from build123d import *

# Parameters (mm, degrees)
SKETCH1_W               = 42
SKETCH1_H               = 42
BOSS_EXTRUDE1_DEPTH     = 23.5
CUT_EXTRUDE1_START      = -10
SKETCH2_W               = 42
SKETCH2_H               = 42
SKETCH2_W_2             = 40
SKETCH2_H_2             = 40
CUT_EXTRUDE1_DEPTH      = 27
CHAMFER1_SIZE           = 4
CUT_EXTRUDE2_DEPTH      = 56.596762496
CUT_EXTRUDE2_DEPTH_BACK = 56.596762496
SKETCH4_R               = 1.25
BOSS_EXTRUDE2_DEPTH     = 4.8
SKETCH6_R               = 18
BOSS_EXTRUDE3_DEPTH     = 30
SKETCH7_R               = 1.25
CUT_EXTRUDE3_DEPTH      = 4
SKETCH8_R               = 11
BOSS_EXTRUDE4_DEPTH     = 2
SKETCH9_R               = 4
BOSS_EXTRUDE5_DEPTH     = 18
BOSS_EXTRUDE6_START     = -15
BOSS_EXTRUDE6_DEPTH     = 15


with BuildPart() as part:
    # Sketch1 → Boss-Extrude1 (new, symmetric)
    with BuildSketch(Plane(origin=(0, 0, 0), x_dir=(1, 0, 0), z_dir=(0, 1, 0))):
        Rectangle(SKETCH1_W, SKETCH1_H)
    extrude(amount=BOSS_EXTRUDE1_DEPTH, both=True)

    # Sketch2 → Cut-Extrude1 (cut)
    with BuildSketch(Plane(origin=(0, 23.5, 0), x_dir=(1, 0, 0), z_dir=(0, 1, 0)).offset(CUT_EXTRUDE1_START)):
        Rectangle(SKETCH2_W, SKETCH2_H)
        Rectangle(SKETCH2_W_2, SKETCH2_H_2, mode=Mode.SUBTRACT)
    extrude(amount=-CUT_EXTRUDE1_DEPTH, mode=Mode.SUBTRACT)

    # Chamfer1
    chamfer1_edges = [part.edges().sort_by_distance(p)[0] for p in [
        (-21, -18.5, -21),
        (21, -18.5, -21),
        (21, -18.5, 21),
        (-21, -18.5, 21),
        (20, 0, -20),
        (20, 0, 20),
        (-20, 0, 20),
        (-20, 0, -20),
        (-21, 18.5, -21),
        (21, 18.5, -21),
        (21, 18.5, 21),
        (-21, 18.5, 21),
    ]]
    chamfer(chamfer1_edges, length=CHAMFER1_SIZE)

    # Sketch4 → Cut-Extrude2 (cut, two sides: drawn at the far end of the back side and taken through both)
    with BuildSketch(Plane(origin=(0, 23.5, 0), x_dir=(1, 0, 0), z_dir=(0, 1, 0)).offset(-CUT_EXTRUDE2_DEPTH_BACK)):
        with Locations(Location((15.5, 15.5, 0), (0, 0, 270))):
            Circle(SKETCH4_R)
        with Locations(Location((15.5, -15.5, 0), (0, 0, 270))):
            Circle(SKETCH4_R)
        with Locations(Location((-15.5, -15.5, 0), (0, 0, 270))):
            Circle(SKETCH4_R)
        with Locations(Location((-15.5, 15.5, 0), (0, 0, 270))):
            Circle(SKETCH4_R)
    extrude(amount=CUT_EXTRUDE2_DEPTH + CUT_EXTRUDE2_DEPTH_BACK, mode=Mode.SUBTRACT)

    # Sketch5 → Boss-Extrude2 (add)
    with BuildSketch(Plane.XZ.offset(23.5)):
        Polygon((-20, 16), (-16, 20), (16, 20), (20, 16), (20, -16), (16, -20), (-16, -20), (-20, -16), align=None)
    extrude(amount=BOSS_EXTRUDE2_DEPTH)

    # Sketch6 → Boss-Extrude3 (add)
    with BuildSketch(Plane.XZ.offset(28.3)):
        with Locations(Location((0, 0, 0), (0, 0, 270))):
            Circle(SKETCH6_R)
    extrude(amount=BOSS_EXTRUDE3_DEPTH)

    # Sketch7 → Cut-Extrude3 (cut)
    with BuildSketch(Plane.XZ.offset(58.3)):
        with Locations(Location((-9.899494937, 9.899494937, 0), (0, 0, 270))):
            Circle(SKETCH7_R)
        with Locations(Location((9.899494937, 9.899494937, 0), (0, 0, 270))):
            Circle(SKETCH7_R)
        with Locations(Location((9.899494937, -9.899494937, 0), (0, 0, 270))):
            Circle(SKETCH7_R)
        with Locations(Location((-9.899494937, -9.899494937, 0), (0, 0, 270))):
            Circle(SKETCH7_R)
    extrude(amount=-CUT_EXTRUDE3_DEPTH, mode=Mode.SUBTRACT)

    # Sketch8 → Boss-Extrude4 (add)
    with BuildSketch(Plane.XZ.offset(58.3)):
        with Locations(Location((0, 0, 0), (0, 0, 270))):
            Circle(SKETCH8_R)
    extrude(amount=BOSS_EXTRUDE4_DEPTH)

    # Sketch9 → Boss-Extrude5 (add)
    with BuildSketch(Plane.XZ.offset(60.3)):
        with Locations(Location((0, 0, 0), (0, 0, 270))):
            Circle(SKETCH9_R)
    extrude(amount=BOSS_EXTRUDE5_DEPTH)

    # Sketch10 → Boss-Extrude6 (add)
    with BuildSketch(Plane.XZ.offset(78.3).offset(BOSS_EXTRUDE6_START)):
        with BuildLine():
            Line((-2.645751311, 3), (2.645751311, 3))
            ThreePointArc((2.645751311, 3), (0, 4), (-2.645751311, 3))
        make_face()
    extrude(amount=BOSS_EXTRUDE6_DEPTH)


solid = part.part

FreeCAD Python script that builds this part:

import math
import FreeCAD as App
import Part
import Sketcher

V = App.Vector
Q = App.Units.Quantity


def edges_at(feature, points):
    """Names of the edges that pass closest to the given points."""
    edges = feature.Shape.Edges
    near = lambda p: min(range(len(edges)), key=lambda i: edges[i].distToShape(Part.Vertex(*p))[0])
    return sorted({f"Edge{near(p) + 1}" for p in points})

doc = App.newDocument("Part")
body = doc.addObject("PartDesign::Body", "Body")

# Sketch on XZ plane
sketch1 = body.newObject("Sketcher::SketchObject", "Sketch")
sketch1.AttachmentSupport = (doc.getObject("XZ_Plane"), [""])
sketch1.MapMode = "FlatFace"
sketch1.addGeometry(Part.LineSegment(V(-21, -21, 0), V(-21, 21, 0)), False)
sketch1.addGeometry(Part.LineSegment(V(-21, 21, 0), V(21, 21, 0)), False)
sketch1.addGeometry(Part.LineSegment(V(21, 21, 0), V(21, -21, 0)), False)
sketch1.addGeometry(Part.LineSegment(V(21, -21, 0), V(-21, -21, 0)), False)
sketch1.addConstraint(Sketcher.Constraint("Coincident", 0, 2, 1, 1))
sketch1.addConstraint(Sketcher.Constraint("Coincident", 1, 2, 2, 1))
sketch1.addConstraint(Sketcher.Constraint("Coincident", 2, 2, 3, 1))
sketch1.addConstraint(Sketcher.Constraint("Coincident", 3, 2, 0, 1))
sketch1.addConstraint(Sketcher.Constraint("Vertical", 0))
sketch1.addConstraint(Sketcher.Constraint("Horizontal", 1))
sketch1.addConstraint(Sketcher.Constraint("Vertical", 2))
sketch1.addConstraint(Sketcher.Constraint("Horizontal", 3))
sketch1.addConstraint(Sketcher.Constraint("Symmetric", 0, 2, 2, 2, -1, 1))
sketch1.addConstraint(Sketcher.Constraint("Equal", 3, 0))
sketch1.addConstraint(Sketcher.Constraint("DistanceX", 1, 1, 1, 2, Q("42 mm")))
pad1 = body.newObject("PartDesign::Pad", "Pad")
pad1.Profile = sketch1
pad1.Length = 47
pad1.Midplane = True

# Sketch on XZ plane
sketch2 = body.newObject("Sketcher::SketchObject", "Sketch001")
sketch2.AttachmentSupport = (doc.getObject("XZ_Plane"), [""])
sketch2.MapMode = "FlatFace"
sketch2.AttachmentOffset = App.Placement(V(0, 0, -13.5), App.Rotation())
sketch2.addGeometry(Part.LineSegment(V(-21, -21, 0), V(-21, 21, 0)), False)
sketch2.addGeometry(Part.LineSegment(V(-21, 21, 0), V(21, 21, 0)), False)
sketch2.addGeometry(Part.LineSegment(V(21, 21, 0), V(21, -21, 0)), False)
sketch2.addGeometry(Part.LineSegment(V(21, -21, 0), V(-21, -21, 0)), False)
sketch2.addGeometry(Part.LineSegment(V(20, 20, 0), V(-20, 20, 0)), False)
sketch2.addGeometry(Part.LineSegment(V(-20, 20, 0), V(-20, -20, 0)), False)
sketch2.addGeometry(Part.LineSegment(V(-20, -20, 0), V(20, -20, 0)), False)
sketch2.addGeometry(Part.LineSegment(V(20, -20, 0), V(20, 20, 0)), False)
sketch2.addConstraint(Sketcher.Constraint("Coincident", 0, 2, 1, 1))
sketch2.addConstraint(Sketcher.Constraint("Coincident", 1, 2, 2, 1))
sketch2.addConstraint(Sketcher.Constraint("Coincident", 2, 2, 3, 1))
sketch2.addConstraint(Sketcher.Constraint("Coincident", 3, 2, 0, 1))
sketch2.addConstraint(Sketcher.Constraint("Coincident", 4, 2, 5, 1))
sketch2.addConstraint(Sketcher.Constraint("Coincident", 5, 2, 6, 1))
sketch2.addConstraint(Sketcher.Constraint("Coincident", 6, 2, 7, 1))
sketch2.addConstraint(Sketcher.Constraint("Coincident", 7, 2, 4, 1))
sketch2.addConstraint(Sketcher.Constraint("Vertical", 0))
sketch2.addConstraint(Sketcher.Constraint("Horizontal", 1))
sketch2.addConstraint(Sketcher.Constraint("Vertical", 2))
sketch2.addConstraint(Sketcher.Constraint("Horizontal", 3))
sketch2.addConstraint(Sketcher.Constraint("Horizontal", 4))
sketch2.addConstraint(Sketcher.Constraint("Vertical", 5))
sketch2.addConstraint(Sketcher.Constraint("Horizontal", 6))
sketch2.addConstraint(Sketcher.Constraint("Vertical", 7))
sketch2.addConstraint(Sketcher.Constraint("Symmetric", 0, 2, 2, 2, -1, 1))
sketch2.addConstraint(Sketcher.Constraint("Symmetric", 4, 2, 6, 2, -1, 1))
sketch2.addConstraint(Sketcher.Constraint("Equal", 3, 0))
sketch2.addConstraint(Sketcher.Constraint("Equal", 6, 5))
sketch2.addConstraint(Sketcher.Constraint("DistanceX", 1, 1, 1, 2, Q("42 mm")))
sketch2.addConstraint(Sketcher.Constraint("DistanceX", 4, 2, 4, 1, Q("40 mm")))
pocket1 = body.newObject("PartDesign::Pocket", "Pocket")
pocket1.Profile = sketch2
pocket1.Length = 27
pocket1.Reversed = True
doc.recompute()

chamfer = body.newObject("PartDesign::Chamfer", "Chamfer")
chamfer.Base = (pocket1, edges_at(pocket1, [
    (-21, -18.5, -21),
    (21, -18.5, -21),
    (21, -18.5, 21),
    (-21, -18.5, 21),
    (20, 0, -20),
    (20, 0, 20),
    (-20, 0, 20),
    (-20, 0, -20),
    (-21, 18.5, -21),
    (21, 18.5, -21),
    (21, 18.5, 21),
    (-21, 18.5, 21),
]))
chamfer.Size = 4

# Sketch on XZ plane
sketch3 = body.newObject("Sketcher::SketchObject", "Sketch002")
sketch3.AttachmentSupport = (doc.getObject("XZ_Plane"), [""])
sketch3.MapMode = "FlatFace"
sketch3.AttachmentOffset = App.Placement(V(0, 0, -23.5), App.Rotation())
sketch3.addGeometry(Part.Circle(V(15.5, -15.5, 0), V(0, 0, 1), 1.2), False)
sketch3.addGeometry(Part.Circle(V(15.5, 15.5, 0), V(0, 0, 1), 1.2), False)
sketch3.addGeometry(Part.Circle(V(-15.5, 15.5, 0), V(0, 0, 1), 1.2), False)
sketch3.addGeometry(Part.Circle(V(-15.5, -15.5, 0), V(0, 0, 1), 1.2), False)
sketch3.addConstraint(Sketcher.Constraint("Equal", 0, 1))
sketch3.addConstraint(Sketcher.Constraint("Equal", 1, 2))
sketch3.addConstraint(Sketcher.Constraint("Equal", 2, 3))
sketch3.addConstraint(Sketcher.Constraint("Symmetric", 0, 3, 2, 3, -1, 1))
sketch3.addConstraint(Sketcher.Constraint("Symmetric", 1, 3, 3, 3, -1, 1))
sketch3.addConstraint(Sketcher.Constraint("Symmetric", 1, 3, 2, 3, -2))
sketch3.addConstraint(Sketcher.Constraint("Diameter", 0, Q("2.5 mm")))
sketch3.addConstraint(Sketcher.Constraint("DistanceY", 0, 3, 1, 3, Q("31 mm")))
sketch3.addConstraint(Sketcher.Constraint("DistanceX", 2, 3, 1, 3, Q("31 mm")))
pocket2 = body.newObject("PartDesign::Pocket", "Pocket001")
pocket2.Profile = sketch3
pocket2.Type = "ThroughAll"
pocket2.Midplane = True

# Sketch on XZ plane
sketch4 = body.newObject("Sketcher::SketchObject", "Sketch003")
sketch4.AttachmentSupport = (doc.getObject("XZ_Plane"), [""])
sketch4.MapMode = "FlatFace"
sketch4.AttachmentOffset = App.Placement(V(0, 0, 23.5), App.Rotation())
sketch4.addGeometry(Part.LineSegment(V(-16, 20, 0), V(-20, 16, 0)), False)
sketch4.addGeometry(Part.LineSegment(V(-20, 16, 0), V(-20, -16, 0)), False)
sketch4.addGeometry(Part.LineSegment(V(-20, -16, 0), V(-16, -20, 0)), False)
sketch4.addGeometry(Part.LineSegment(V(-16, -20, 0), V(16, -20, 0)), False)
sketch4.addGeometry(Part.LineSegment(V(16, -20, 0), V(20, -16, 0)), False)
sketch4.addGeometry(Part.LineSegment(V(20, -16, 0), V(20, 16, 0)), False)
sketch4.addGeometry(Part.LineSegment(V(20, 16, 0), V(16, 20, 0)), False)
sketch4.addGeometry(Part.LineSegment(V(16, 20, 0), V(-16, 20, 0)), False)
sketch4.addConstraint(Sketcher.Constraint("Coincident", 0, 2, 1, 1))
sketch4.addConstraint(Sketcher.Constraint("Coincident", 1, 2, 2, 1))
sketch4.addConstraint(Sketcher.Constraint("Coincident", 2, 2, 3, 1))
sketch4.addConstraint(Sketcher.Constraint("Coincident", 3, 2, 4, 1))
sketch4.addConstraint(Sketcher.Constraint("Coincident", 4, 2, 5, 1))
sketch4.addConstraint(Sketcher.Constraint("Coincident", 5, 2, 6, 1))
sketch4.addConstraint(Sketcher.Constraint("Coincident", 6, 2, 7, 1))
sketch4.addConstraint(Sketcher.Constraint("Coincident", 7, 2, 0, 1))
sketch4.addConstraint(Sketcher.Constraint("Vertical", 1))
sketch4.addConstraint(Sketcher.Constraint("Horizontal", 3))
sketch4.addConstraint(Sketcher.Constraint("Vertical", 5))
sketch4.addConstraint(Sketcher.Constraint("Horizontal", 7))
sketch4.addConstraint(Sketcher.Constraint("Symmetric", 0, 2, 4, 2, -1, 1))
sketch4.addConstraint(Sketcher.Constraint("Symmetric", 2, 2, 6, 2, -1, 1))
sketch4.addConstraint(Sketcher.Constraint("Perpendicular", 0, 2))
sketch4.addConstraint(Sketcher.Constraint("Perpendicular", 2, 4))
sketch4.addConstraint(Sketcher.Constraint("Perpendicular", 4, 6))
sketch4.addConstraint(Sketcher.Constraint("Horizontal", 1, 2, 4, 2))
sketch4.addConstraint(Sketcher.Constraint("Vertical", 3, 2, 6, 2))
sketch4.addConstraint(Sketcher.Constraint("Equal", 7, 1))
sketch4.addConstraint(Sketcher.Constraint("DistanceX", 3, 1, 3, 2, Q("32 mm")))
sketch4.addConstraint(Sketcher.Constraint("DistanceX", 0, 2, -1, 1, Q("20 mm")))
pad2 = body.newObject("PartDesign::Pad", "Pad001")
pad2.Profile = sketch4
pad2.Length = 4.8

# Sketch on XZ plane
sketch5 = body.newObject("Sketcher::SketchObject", "Sketch004")
sketch5.AttachmentSupport = (doc.getObject("XZ_Plane"), [""])
sketch5.MapMode = "FlatFace"
sketch5.AttachmentOffset = App.Placement(V(0, 0, 28.3), App.Rotation())
sketch5.addGeometry(Part.Circle(V(0, 0, 0), V(0, 0, 1), 18), False)
sketch5.addConstraint(Sketcher.Constraint("Coincident", 0, 3, -1, 1))
sketch5.addConstraint(Sketcher.Constraint("Diameter", 0, Q("36 mm")))
pad3 = body.newObject("PartDesign::Pad", "Pad002")
pad3.Profile = sketch5
pad3.Length = 30

# Sketch on XZ plane
sketch6 = body.newObject("Sketcher::SketchObject", "Sketch005")
sketch6.AttachmentSupport = (doc.getObject("XZ_Plane"), [""])
sketch6.MapMode = "FlatFace"
sketch6.AttachmentOffset = App.Placement(V(0, 0, 58.3), App.Rotation())
sketch6.addGeometry(Part.Circle(V(-9.9, 9.9, 0), V(0, 0, 1), 1.2), False)
sketch6.addGeometry(Part.Circle(V(9.9, 9.9, 0), V(0, 0, 1), 1.2), False)
sketch6.addGeometry(Part.Circle(V(9.9, -9.9, 0), V(0, 0, 1), 1.2), False)
sketch6.addGeometry(Part.Circle(V(-9.9, -9.9, 0), V(0, 0, 1), 1.2), False)
sketch6.addConstraint(Sketcher.Constraint("Equal", 0, 1))
sketch6.addConstraint(Sketcher.Constraint("Equal", 1, 2))
sketch6.addConstraint(Sketcher.Constraint("Equal", 2, 3))
sketch6.addConstraint(Sketcher.Constraint("Symmetric", 0, 3, 2, 3, -1, 1))
sketch6.addConstraint(Sketcher.Constraint("Symmetric", 1, 3, 3, 3, -1, 1))
sketch6.addConstraint(Sketcher.Constraint("Symmetric", 0, 3, 1, 3, -2))
sketch6.addConstraint(Sketcher.Constraint("Diameter", 0, Q("2.5 mm")))
sketch6.addConstraint(Sketcher.Constraint("DistanceX", 0, 3, 1, 3, Q("19.79899 mm")))
sketch6.addConstraint(Sketcher.Constraint("DistanceY", 2, 3, 1, 3, Q("19.79899 mm")))
pocket3 = body.newObject("PartDesign::Pocket", "Pocket002")
pocket3.Profile = sketch6
pocket3.Length = 4

# Sketch on XZ plane
sketch7 = body.newObject("Sketcher::SketchObject", "Sketch006")
sketch7.AttachmentSupport = (doc.getObject("XZ_Plane"), [""])
sketch7.MapMode = "FlatFace"
sketch7.AttachmentOffset = App.Placement(V(0, 0, 58.3), App.Rotation())
sketch7.addGeometry(Part.Circle(V(0, 0, 0), V(0, 0, 1), 11), False)
sketch7.addConstraint(Sketcher.Constraint("Coincident", 0, 3, -1, 1))
sketch7.addConstraint(Sketcher.Constraint("Diameter", 0, Q("22 mm")))
pad4 = body.newObject("PartDesign::Pad", "Pad003")
pad4.Profile = sketch7
pad4.Length = 2

# Sketch on XZ plane
sketch8 = body.newObject("Sketcher::SketchObject", "Sketch007")
sketch8.AttachmentSupport = (doc.getObject("XZ_Plane"), [""])
sketch8.MapMode = "FlatFace"
sketch8.AttachmentOffset = App.Placement(V(0, 0, 60.3), App.Rotation())
sketch8.addGeometry(Part.Circle(V(0, 0, 0), V(0, 0, 1), 4), False)
sketch8.addConstraint(Sketcher.Constraint("Coincident", 0, 3, -1, 1))
sketch8.addConstraint(Sketcher.Constraint("Diameter", 0, Q("8 mm")))
pad5 = body.newObject("PartDesign::Pad", "Pad004")
pad5.Profile = sketch8
pad5.Length = 18

# Sketch on XZ plane
sketch9 = body.newObject("Sketcher::SketchObject", "Sketch008")
sketch9.AttachmentSupport = (doc.getObject("XZ_Plane"), [""])
sketch9.MapMode = "FlatFace"
sketch9.AttachmentOffset = App.Placement(V(0, 0, 63.3), App.Rotation())
sketch9.addGeometry(Part.LineSegment(V(-2.6, 3, 0), V(2.6, 3, 0)), False)
sketch9.addGeometry(Part.ArcOfCircle(Part.Circle(V(0, 0, 0), V(0, 0, 1), 4), math.radians(49), math.radians(131)), False)
sketch9.addConstraint(Sketcher.Constraint("Coincident", 0, 1, 1, 2))
sketch9.addConstraint(Sketcher.Constraint("Coincident", 1, 1, 0, 2))
sketch9.addConstraint(Sketcher.Constraint("Horizontal", 0))
sketch9.addConstraint(Sketcher.Constraint("Coincident", 1, 3, -1, 1))
sketch9.addConstraint(Sketcher.Constraint("Radius", 1, Q("4 mm")))
sketch9.addConstraint(Sketcher.Constraint("DistanceY", -1, 1, 0, 1, Q("3 mm")))
pad6 = body.newObject("PartDesign::Pad", "Pad005")
pad6.Profile = sketch9
pad6.Length = 15

doc.recompute()
